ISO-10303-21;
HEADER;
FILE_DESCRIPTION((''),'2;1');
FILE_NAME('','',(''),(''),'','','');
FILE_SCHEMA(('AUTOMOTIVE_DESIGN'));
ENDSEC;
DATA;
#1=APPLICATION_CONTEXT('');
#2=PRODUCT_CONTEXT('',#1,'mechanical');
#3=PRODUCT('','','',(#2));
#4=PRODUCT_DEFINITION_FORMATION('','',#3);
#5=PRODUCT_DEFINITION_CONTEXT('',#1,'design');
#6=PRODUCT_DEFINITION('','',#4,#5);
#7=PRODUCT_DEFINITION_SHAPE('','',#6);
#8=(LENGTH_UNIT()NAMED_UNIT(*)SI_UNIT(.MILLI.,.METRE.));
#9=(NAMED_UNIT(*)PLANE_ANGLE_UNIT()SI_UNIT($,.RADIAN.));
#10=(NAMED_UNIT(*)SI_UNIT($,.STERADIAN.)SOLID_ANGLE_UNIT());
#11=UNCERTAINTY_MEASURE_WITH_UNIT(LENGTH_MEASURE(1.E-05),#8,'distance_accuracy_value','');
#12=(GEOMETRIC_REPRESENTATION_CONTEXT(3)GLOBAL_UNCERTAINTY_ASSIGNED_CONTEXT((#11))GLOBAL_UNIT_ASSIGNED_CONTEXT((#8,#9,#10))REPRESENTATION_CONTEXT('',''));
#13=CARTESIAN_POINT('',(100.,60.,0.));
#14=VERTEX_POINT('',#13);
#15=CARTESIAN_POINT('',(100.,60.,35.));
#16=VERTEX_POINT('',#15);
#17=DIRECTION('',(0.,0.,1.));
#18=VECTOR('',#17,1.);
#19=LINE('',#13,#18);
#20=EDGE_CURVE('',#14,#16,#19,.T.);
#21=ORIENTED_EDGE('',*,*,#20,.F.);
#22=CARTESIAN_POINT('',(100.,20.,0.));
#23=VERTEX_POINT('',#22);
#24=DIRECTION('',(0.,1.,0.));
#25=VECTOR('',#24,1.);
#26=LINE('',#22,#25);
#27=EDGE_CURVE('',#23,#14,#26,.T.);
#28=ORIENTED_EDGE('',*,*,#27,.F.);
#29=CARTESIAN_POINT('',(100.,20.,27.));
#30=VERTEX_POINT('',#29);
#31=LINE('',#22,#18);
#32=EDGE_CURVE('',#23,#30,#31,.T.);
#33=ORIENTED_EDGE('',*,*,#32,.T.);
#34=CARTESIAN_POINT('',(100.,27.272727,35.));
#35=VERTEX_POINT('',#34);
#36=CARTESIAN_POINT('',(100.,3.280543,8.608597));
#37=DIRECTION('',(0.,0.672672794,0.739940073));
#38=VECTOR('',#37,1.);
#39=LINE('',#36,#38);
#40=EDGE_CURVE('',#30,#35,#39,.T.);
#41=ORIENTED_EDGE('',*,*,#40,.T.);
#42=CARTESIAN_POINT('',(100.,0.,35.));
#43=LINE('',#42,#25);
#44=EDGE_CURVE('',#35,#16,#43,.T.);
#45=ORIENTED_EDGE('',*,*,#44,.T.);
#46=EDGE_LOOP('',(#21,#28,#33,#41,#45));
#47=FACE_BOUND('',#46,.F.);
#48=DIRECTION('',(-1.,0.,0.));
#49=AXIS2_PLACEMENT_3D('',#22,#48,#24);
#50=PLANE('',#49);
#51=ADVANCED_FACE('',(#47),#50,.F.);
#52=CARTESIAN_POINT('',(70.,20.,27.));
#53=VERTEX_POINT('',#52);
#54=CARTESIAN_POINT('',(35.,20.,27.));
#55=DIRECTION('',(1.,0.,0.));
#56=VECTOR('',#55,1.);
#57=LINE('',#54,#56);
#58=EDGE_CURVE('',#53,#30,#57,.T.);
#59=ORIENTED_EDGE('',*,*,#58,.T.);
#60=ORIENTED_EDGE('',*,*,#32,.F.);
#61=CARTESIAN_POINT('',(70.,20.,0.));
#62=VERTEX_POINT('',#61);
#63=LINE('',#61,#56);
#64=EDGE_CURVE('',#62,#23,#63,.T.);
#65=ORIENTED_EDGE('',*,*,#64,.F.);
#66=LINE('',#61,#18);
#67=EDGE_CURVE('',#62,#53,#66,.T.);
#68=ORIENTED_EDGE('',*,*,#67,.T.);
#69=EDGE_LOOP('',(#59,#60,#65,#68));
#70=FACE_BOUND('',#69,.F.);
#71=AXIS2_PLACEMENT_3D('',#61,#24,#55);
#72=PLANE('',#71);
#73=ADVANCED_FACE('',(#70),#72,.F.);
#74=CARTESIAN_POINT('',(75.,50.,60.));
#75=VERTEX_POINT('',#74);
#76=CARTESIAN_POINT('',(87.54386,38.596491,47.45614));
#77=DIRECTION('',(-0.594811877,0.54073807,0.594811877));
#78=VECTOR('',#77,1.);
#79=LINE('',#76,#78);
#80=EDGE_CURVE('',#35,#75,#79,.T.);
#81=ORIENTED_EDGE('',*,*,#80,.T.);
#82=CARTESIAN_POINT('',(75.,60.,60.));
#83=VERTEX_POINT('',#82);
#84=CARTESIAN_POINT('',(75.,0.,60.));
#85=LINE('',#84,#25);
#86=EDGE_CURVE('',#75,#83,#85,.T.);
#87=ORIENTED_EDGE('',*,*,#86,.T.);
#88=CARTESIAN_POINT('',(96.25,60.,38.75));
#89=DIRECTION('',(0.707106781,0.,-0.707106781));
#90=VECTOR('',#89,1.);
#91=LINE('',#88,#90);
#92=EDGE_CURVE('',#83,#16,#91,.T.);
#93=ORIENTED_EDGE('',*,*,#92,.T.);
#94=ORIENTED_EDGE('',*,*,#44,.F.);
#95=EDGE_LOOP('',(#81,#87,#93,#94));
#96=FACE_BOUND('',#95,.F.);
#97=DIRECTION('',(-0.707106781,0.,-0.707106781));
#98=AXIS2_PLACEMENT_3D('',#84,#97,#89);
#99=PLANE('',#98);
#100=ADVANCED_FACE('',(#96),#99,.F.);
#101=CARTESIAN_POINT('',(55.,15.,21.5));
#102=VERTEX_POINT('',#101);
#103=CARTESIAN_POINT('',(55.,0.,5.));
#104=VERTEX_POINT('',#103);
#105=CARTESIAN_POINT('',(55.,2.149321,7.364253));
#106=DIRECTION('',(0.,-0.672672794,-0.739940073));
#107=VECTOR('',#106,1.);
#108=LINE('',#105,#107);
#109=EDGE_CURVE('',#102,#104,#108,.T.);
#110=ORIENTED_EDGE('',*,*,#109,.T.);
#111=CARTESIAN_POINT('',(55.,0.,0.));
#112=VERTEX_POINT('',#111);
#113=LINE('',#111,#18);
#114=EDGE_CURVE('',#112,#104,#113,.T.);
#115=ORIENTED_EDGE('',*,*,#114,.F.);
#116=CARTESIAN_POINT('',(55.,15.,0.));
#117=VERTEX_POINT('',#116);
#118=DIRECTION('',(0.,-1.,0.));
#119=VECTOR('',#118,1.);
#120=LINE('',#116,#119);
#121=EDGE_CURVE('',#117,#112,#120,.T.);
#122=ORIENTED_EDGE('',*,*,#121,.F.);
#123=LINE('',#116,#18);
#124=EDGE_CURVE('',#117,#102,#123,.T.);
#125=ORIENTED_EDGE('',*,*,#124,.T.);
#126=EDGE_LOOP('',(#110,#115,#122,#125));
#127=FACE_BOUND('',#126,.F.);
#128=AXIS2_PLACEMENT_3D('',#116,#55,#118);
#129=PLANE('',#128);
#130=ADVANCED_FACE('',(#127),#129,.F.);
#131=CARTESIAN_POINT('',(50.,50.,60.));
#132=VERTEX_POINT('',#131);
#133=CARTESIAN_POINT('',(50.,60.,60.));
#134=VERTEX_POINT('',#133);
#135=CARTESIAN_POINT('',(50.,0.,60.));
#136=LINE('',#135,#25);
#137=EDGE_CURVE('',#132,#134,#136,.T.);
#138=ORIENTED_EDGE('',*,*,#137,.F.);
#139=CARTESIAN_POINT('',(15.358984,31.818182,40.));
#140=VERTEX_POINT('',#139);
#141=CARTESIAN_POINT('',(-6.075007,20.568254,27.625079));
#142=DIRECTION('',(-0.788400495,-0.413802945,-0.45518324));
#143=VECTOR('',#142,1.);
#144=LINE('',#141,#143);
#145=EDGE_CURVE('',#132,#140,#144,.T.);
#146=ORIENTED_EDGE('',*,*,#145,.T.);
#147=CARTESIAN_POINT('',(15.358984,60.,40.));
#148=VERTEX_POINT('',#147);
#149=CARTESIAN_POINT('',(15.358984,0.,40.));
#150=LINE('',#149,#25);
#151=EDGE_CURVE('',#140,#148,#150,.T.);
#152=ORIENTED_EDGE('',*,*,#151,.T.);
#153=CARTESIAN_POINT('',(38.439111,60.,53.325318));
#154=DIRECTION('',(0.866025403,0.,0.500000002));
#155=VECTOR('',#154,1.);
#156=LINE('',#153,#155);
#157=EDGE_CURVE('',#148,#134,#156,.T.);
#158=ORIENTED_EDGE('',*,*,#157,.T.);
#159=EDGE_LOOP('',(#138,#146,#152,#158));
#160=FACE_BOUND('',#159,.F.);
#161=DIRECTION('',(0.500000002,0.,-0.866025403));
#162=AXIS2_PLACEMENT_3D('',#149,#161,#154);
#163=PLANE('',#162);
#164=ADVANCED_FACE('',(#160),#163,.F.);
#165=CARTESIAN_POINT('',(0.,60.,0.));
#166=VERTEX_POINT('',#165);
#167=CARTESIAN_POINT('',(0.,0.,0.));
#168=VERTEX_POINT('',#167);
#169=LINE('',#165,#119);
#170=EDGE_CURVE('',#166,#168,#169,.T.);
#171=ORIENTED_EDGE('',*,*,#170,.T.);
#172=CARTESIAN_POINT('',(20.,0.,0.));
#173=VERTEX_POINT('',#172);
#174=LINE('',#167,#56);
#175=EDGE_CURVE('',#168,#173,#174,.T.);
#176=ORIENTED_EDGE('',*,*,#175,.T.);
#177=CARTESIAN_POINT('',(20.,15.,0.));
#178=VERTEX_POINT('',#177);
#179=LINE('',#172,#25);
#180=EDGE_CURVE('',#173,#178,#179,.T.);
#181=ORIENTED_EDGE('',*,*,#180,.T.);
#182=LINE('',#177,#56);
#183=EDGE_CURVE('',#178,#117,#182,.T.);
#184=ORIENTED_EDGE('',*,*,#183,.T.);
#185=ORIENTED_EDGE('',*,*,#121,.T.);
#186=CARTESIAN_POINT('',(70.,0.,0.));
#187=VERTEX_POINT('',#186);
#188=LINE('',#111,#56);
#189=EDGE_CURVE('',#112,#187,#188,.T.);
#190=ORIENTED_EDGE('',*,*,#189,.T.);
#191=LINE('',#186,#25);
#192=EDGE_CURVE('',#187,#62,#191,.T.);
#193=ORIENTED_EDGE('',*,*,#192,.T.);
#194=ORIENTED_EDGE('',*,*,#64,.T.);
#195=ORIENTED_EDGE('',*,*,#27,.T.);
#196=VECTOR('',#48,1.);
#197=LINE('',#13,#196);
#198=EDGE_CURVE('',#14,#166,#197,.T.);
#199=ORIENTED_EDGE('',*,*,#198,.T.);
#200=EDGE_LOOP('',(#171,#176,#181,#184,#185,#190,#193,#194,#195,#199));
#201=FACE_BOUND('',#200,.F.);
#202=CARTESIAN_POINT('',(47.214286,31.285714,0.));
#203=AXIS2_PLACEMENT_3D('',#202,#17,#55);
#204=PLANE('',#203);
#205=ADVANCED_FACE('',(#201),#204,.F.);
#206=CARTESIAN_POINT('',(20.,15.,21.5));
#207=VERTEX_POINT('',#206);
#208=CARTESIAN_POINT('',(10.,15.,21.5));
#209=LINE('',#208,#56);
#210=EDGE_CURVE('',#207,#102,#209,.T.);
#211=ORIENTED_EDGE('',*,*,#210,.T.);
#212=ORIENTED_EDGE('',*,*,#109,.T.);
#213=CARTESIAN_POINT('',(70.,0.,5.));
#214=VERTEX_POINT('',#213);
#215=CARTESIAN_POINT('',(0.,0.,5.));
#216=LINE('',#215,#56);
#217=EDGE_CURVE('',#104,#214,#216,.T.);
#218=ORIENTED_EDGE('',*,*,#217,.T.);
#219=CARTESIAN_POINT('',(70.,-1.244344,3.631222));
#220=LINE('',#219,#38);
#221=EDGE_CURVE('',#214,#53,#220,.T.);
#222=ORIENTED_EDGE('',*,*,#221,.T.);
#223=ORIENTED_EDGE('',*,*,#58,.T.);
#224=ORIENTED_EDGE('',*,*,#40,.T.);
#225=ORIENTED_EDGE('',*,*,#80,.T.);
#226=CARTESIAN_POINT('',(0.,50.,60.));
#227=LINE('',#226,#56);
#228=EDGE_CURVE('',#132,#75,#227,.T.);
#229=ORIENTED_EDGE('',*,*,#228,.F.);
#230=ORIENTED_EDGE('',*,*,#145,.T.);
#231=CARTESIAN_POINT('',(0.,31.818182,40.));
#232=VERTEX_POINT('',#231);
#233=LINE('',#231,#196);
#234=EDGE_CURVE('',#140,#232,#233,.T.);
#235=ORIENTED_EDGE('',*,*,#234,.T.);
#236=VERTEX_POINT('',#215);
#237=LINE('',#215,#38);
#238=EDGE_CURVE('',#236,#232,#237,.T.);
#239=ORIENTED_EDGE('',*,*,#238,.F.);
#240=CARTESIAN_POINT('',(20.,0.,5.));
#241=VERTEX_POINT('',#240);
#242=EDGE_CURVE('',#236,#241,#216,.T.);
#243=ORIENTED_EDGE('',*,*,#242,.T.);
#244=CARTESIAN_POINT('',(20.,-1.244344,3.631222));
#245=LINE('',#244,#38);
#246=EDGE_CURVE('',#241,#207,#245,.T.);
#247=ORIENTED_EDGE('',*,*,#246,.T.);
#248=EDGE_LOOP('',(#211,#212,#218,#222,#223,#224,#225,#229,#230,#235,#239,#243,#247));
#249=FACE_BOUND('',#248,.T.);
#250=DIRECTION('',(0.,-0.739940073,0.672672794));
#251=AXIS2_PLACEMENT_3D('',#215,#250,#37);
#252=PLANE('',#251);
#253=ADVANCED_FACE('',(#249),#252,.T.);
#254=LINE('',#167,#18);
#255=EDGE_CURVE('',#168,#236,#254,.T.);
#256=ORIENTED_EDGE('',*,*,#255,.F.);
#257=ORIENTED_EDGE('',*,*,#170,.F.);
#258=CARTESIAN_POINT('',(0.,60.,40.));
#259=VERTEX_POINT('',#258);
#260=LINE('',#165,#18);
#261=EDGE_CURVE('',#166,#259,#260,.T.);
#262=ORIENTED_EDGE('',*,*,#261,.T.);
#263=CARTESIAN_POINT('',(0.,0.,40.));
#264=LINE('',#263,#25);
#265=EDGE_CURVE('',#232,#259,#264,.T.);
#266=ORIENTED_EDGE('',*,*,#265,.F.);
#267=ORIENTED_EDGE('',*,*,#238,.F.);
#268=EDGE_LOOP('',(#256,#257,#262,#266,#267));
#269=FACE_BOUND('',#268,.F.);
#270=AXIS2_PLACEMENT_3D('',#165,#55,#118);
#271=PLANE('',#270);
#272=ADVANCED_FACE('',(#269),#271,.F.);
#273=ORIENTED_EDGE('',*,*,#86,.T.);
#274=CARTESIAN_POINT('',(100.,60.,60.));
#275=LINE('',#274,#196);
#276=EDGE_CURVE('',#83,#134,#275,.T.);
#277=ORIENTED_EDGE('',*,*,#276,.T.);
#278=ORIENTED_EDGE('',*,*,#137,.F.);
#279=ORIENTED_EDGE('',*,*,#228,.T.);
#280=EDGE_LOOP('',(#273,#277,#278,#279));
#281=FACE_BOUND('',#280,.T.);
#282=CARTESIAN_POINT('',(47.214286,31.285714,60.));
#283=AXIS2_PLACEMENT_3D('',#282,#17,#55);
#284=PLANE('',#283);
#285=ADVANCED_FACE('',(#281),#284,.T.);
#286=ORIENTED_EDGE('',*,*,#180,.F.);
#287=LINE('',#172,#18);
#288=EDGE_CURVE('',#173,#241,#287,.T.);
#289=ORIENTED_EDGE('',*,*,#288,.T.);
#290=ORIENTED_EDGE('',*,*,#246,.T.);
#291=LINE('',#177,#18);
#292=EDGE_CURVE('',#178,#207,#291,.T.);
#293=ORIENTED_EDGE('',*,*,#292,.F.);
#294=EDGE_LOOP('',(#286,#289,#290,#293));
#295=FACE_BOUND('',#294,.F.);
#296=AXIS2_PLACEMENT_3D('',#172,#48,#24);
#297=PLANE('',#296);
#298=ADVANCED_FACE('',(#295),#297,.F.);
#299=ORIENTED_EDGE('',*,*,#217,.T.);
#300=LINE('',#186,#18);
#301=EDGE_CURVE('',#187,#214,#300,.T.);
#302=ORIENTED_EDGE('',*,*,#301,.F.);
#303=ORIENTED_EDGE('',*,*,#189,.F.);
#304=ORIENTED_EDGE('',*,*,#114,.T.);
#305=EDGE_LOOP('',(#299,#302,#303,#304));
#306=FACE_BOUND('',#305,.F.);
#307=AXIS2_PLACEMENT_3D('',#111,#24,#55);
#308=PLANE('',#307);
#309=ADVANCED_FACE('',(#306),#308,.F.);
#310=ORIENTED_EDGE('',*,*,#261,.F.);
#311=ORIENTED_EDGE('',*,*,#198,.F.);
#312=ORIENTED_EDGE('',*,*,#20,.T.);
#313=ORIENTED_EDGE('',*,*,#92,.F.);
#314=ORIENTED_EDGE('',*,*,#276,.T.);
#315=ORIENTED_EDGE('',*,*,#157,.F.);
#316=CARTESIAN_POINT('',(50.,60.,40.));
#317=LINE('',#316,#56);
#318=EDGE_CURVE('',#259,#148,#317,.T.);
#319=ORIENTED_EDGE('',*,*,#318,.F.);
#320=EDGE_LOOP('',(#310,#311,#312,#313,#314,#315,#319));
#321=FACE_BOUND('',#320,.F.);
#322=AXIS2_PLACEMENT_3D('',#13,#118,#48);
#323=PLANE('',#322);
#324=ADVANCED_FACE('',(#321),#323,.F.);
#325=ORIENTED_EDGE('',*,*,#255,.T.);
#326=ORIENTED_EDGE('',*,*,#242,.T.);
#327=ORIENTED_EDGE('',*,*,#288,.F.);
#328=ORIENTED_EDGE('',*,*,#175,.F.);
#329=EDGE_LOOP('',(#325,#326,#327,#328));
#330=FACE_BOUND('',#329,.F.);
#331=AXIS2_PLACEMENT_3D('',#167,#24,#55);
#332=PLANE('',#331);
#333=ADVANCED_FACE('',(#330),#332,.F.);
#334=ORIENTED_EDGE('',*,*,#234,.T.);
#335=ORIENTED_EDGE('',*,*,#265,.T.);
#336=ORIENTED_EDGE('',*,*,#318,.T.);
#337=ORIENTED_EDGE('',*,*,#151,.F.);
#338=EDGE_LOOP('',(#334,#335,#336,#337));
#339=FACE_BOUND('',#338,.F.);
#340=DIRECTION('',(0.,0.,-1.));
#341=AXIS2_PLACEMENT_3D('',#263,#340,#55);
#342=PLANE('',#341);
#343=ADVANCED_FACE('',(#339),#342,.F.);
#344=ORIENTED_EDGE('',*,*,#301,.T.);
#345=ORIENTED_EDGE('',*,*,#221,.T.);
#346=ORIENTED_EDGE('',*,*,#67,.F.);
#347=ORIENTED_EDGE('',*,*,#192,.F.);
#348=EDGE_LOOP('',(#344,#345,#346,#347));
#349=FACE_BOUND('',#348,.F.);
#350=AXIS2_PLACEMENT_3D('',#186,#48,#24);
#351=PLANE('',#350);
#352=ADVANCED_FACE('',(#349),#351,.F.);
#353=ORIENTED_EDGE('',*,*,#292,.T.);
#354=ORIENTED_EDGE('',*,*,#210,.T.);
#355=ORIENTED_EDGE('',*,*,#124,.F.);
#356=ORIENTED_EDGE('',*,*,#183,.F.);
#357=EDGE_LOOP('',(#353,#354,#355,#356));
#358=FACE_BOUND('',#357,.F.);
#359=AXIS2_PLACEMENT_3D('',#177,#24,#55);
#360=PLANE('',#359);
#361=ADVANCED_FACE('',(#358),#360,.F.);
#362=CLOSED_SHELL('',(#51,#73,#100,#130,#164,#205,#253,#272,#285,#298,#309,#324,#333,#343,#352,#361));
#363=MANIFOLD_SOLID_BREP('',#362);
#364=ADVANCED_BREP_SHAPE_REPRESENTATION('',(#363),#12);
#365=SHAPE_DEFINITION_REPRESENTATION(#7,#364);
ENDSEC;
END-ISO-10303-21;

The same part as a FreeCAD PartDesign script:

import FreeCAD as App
import Part
import Sketcher
Q = App.Units.Quantity


def add_polygon(sketch, points):
    """Adds a closed chain of lines whose ends are joined by coincident constraints."""
    first, n = sketch.GeometryCount, len(points)
    for a, b in zip(points, points[1:] + points[:1]):
        sketch.addGeometry(Part.LineSegment(App.Vector(*a, 0), App.Vector(*b, 0)), False)
    for i in range(n):
        sketch.addConstraint(Sketcher.Constraint("Coincident", first + i, 2, first + (i + 1) % n, 1))

doc = App.newDocument("Part")
body = doc.addObject("PartDesign::Body", "Body")

# Sketch on XY plane
sketch1 = doc.addObject("Sketcher::SketchObject", "Sketch")
body.addObject(sketch1)
sketch1.AttachmentSupport = (doc.XY_Plane, [""])
sketch1.MapMode = "FlatFace"
add_polygon(sketch1, [(0, 60), (0, 0), (20, 0), (20, 15), (55, 15), (55, 0), (70, 0), (70, 20), (100, 20), (100, 60)])  # lines 0-9
sketch1.addConstraint(Sketcher.Constraint("Vertical", 0))
sketch1.addConstraint(Sketcher.Constraint("Horizontal", 1))
sketch1.addConstraint(Sketcher.Constraint("Vertical", 2))
sketch1.addConstraint(Sketcher.Constraint("Horizontal", 3))
sketch1.addConstraint(Sketcher.Constraint("Vertical", 4))
sketch1.addConstraint(Sketcher.Constraint("Horizontal", 5))
sketch1.addConstraint(Sketcher.Constraint("Vertical", 6))
sketch1.addConstraint(Sketcher.Constraint("Horizontal", 7))
sketch1.addConstraint(Sketcher.Constraint("Vertical", 8))
sketch1.addConstraint(Sketcher.Constraint("Horizontal", 9))
sketch1.addConstraint(Sketcher.Constraint("Coincident", 0, 2, -1, 1))
sketch1.addConstraint(Sketcher.Constraint("PointOnObject", 4, 2, -1))
sketch1.addConstraint(Sketcher.Constraint("Equal", 5, 2))
sketch1.addConstraint(Sketcher.Constraint("Equal", 1, 6))
sketch1.addConstraint(Sketcher.Constraint("DistanceX", 1, 1, 1, 2, Q("20 mm")))
sketch1.addConstraint(Sketcher.Constraint("DistanceX", 3, 1, 3, 2, Q("35 mm")))
sketch1.addConstraint(Sketcher.Constraint("DistanceX", 5, 1, 5, 2, Q("15 mm")))
sketch1.addConstraint(Sketcher.Constraint("DistanceX", 7, 1, 7, 2, Q("30 mm")))
sketch1.addConstraint(Sketcher.Constraint("DistanceY", 0, 2, 0, 1, Q("60 mm")))
pad1 = doc.addObject("PartDesign::Pad", "Pad")
body.addObject(pad1)
pad1.Profile = sketch1
pad1.Length = 60

# Sketch on XZ plane
sketch2 = doc.addObject("Sketcher::SketchObject", "Sketch001")
body.addObject(sketch2)
sketch2.AttachmentSupport = (doc.XZ_Plane, [""])
sketch2.MapMode = "FlatFace"
add_polygon(sketch2, [(0, 60), (0, 40), (15.358984, 40), (50, 60)])  # lines 0-3
add_polygon(sketch2, [(100, 60), (75, 60), (100, 35)])  # lines 4-6
sketch2.addConstraint(Sketcher.Constraint("Vertical", 0))
sketch2.addConstraint(Sketcher.Constraint("Horizontal", 1))
sketch2.addConstraint(Sketcher.Constraint("Horizontal", 3))
sketch2.addConstraint(Sketcher.Constraint("Horizontal", 4))
sketch2.addConstraint(Sketcher.Constraint("Vertical", 6))
sketch2.addConstraint(Sketcher.Constraint("PointOnObject", 0, 2, -2))
sketch2.addConstraint(Sketcher.Constraint("Horizontal", 3, 2, 4, 2))
sketch2.addConstraint(Sketcher.Constraint("Equal", 4, 6))
sketch2.addConstraint(Sketcher.Constraint("DistanceX", 3, 2, 3, 1, Q("50 mm")))
sketch2.addConstraint(Sketcher.Constraint("DistanceX", 4, 2, 4, 1, Q("25 mm")))
sketch2.addConstraint(Sketcher.Constraint("DistanceY", 0, 2, 0, 1, Q("20 mm")))
sketch2.addConstraint(Sketcher.Constraint("Angle", 2, Q("30 deg")))
sketch2.addConstraint(Sketcher.Constraint("DistanceY", -1, 1, 0, 2, Q("40 mm")))
sketch2.addConstraint(Sketcher.Constraint("DistanceX", -1, 1, 4, 2, Q("75 mm")))
pocket1 = doc.addObject("PartDesign::Pocket", "Pocket")
body.addObject(pocket1)
pocket1.Profile = sketch2
pocket1.Type = "ThroughAll"

# Sketch on YZ plane
sketch3 = doc.addObject("Sketcher::SketchObject", "Sketch002")
body.addObject(sketch3)
sketch3.AttachmentSupport = (doc.YZ_Plane, [""])
sketch3.MapMode = "FlatFace"
add_polygon(sketch3, [(0, 60), (0, 5), (50, 60)])  # lines 0-2
sketch3.addConstraint(Sketcher.Constraint("Vertical", 0))
sketch3.addConstraint(Sketcher.Constraint("Horizontal", 2))
sketch3.addConstraint(Sketcher.Constraint("PointOnObject", 0, 2, -2))
sketch3.addConstraint(Sketcher.Constraint("DistanceX", 2, 2, 2, 1, Q("50 mm")))
sketch3.addConstraint(Sketcher.Constraint("DistanceY", 0, 2, 0, 1, Q("55 mm")))
sketch3.addConstraint(Sketcher.Constraint("DistanceY", -1, 1, 0, 2, Q("5 mm")))
pocket2 = doc.addObject("PartDesign::Pocket", "Pocket001")
body.addObject(pocket2)
pocket2.Profile = sketch3
pocket2.Type = "ThroughAll"
pocket2.Reversed = True

doc.recompute()
